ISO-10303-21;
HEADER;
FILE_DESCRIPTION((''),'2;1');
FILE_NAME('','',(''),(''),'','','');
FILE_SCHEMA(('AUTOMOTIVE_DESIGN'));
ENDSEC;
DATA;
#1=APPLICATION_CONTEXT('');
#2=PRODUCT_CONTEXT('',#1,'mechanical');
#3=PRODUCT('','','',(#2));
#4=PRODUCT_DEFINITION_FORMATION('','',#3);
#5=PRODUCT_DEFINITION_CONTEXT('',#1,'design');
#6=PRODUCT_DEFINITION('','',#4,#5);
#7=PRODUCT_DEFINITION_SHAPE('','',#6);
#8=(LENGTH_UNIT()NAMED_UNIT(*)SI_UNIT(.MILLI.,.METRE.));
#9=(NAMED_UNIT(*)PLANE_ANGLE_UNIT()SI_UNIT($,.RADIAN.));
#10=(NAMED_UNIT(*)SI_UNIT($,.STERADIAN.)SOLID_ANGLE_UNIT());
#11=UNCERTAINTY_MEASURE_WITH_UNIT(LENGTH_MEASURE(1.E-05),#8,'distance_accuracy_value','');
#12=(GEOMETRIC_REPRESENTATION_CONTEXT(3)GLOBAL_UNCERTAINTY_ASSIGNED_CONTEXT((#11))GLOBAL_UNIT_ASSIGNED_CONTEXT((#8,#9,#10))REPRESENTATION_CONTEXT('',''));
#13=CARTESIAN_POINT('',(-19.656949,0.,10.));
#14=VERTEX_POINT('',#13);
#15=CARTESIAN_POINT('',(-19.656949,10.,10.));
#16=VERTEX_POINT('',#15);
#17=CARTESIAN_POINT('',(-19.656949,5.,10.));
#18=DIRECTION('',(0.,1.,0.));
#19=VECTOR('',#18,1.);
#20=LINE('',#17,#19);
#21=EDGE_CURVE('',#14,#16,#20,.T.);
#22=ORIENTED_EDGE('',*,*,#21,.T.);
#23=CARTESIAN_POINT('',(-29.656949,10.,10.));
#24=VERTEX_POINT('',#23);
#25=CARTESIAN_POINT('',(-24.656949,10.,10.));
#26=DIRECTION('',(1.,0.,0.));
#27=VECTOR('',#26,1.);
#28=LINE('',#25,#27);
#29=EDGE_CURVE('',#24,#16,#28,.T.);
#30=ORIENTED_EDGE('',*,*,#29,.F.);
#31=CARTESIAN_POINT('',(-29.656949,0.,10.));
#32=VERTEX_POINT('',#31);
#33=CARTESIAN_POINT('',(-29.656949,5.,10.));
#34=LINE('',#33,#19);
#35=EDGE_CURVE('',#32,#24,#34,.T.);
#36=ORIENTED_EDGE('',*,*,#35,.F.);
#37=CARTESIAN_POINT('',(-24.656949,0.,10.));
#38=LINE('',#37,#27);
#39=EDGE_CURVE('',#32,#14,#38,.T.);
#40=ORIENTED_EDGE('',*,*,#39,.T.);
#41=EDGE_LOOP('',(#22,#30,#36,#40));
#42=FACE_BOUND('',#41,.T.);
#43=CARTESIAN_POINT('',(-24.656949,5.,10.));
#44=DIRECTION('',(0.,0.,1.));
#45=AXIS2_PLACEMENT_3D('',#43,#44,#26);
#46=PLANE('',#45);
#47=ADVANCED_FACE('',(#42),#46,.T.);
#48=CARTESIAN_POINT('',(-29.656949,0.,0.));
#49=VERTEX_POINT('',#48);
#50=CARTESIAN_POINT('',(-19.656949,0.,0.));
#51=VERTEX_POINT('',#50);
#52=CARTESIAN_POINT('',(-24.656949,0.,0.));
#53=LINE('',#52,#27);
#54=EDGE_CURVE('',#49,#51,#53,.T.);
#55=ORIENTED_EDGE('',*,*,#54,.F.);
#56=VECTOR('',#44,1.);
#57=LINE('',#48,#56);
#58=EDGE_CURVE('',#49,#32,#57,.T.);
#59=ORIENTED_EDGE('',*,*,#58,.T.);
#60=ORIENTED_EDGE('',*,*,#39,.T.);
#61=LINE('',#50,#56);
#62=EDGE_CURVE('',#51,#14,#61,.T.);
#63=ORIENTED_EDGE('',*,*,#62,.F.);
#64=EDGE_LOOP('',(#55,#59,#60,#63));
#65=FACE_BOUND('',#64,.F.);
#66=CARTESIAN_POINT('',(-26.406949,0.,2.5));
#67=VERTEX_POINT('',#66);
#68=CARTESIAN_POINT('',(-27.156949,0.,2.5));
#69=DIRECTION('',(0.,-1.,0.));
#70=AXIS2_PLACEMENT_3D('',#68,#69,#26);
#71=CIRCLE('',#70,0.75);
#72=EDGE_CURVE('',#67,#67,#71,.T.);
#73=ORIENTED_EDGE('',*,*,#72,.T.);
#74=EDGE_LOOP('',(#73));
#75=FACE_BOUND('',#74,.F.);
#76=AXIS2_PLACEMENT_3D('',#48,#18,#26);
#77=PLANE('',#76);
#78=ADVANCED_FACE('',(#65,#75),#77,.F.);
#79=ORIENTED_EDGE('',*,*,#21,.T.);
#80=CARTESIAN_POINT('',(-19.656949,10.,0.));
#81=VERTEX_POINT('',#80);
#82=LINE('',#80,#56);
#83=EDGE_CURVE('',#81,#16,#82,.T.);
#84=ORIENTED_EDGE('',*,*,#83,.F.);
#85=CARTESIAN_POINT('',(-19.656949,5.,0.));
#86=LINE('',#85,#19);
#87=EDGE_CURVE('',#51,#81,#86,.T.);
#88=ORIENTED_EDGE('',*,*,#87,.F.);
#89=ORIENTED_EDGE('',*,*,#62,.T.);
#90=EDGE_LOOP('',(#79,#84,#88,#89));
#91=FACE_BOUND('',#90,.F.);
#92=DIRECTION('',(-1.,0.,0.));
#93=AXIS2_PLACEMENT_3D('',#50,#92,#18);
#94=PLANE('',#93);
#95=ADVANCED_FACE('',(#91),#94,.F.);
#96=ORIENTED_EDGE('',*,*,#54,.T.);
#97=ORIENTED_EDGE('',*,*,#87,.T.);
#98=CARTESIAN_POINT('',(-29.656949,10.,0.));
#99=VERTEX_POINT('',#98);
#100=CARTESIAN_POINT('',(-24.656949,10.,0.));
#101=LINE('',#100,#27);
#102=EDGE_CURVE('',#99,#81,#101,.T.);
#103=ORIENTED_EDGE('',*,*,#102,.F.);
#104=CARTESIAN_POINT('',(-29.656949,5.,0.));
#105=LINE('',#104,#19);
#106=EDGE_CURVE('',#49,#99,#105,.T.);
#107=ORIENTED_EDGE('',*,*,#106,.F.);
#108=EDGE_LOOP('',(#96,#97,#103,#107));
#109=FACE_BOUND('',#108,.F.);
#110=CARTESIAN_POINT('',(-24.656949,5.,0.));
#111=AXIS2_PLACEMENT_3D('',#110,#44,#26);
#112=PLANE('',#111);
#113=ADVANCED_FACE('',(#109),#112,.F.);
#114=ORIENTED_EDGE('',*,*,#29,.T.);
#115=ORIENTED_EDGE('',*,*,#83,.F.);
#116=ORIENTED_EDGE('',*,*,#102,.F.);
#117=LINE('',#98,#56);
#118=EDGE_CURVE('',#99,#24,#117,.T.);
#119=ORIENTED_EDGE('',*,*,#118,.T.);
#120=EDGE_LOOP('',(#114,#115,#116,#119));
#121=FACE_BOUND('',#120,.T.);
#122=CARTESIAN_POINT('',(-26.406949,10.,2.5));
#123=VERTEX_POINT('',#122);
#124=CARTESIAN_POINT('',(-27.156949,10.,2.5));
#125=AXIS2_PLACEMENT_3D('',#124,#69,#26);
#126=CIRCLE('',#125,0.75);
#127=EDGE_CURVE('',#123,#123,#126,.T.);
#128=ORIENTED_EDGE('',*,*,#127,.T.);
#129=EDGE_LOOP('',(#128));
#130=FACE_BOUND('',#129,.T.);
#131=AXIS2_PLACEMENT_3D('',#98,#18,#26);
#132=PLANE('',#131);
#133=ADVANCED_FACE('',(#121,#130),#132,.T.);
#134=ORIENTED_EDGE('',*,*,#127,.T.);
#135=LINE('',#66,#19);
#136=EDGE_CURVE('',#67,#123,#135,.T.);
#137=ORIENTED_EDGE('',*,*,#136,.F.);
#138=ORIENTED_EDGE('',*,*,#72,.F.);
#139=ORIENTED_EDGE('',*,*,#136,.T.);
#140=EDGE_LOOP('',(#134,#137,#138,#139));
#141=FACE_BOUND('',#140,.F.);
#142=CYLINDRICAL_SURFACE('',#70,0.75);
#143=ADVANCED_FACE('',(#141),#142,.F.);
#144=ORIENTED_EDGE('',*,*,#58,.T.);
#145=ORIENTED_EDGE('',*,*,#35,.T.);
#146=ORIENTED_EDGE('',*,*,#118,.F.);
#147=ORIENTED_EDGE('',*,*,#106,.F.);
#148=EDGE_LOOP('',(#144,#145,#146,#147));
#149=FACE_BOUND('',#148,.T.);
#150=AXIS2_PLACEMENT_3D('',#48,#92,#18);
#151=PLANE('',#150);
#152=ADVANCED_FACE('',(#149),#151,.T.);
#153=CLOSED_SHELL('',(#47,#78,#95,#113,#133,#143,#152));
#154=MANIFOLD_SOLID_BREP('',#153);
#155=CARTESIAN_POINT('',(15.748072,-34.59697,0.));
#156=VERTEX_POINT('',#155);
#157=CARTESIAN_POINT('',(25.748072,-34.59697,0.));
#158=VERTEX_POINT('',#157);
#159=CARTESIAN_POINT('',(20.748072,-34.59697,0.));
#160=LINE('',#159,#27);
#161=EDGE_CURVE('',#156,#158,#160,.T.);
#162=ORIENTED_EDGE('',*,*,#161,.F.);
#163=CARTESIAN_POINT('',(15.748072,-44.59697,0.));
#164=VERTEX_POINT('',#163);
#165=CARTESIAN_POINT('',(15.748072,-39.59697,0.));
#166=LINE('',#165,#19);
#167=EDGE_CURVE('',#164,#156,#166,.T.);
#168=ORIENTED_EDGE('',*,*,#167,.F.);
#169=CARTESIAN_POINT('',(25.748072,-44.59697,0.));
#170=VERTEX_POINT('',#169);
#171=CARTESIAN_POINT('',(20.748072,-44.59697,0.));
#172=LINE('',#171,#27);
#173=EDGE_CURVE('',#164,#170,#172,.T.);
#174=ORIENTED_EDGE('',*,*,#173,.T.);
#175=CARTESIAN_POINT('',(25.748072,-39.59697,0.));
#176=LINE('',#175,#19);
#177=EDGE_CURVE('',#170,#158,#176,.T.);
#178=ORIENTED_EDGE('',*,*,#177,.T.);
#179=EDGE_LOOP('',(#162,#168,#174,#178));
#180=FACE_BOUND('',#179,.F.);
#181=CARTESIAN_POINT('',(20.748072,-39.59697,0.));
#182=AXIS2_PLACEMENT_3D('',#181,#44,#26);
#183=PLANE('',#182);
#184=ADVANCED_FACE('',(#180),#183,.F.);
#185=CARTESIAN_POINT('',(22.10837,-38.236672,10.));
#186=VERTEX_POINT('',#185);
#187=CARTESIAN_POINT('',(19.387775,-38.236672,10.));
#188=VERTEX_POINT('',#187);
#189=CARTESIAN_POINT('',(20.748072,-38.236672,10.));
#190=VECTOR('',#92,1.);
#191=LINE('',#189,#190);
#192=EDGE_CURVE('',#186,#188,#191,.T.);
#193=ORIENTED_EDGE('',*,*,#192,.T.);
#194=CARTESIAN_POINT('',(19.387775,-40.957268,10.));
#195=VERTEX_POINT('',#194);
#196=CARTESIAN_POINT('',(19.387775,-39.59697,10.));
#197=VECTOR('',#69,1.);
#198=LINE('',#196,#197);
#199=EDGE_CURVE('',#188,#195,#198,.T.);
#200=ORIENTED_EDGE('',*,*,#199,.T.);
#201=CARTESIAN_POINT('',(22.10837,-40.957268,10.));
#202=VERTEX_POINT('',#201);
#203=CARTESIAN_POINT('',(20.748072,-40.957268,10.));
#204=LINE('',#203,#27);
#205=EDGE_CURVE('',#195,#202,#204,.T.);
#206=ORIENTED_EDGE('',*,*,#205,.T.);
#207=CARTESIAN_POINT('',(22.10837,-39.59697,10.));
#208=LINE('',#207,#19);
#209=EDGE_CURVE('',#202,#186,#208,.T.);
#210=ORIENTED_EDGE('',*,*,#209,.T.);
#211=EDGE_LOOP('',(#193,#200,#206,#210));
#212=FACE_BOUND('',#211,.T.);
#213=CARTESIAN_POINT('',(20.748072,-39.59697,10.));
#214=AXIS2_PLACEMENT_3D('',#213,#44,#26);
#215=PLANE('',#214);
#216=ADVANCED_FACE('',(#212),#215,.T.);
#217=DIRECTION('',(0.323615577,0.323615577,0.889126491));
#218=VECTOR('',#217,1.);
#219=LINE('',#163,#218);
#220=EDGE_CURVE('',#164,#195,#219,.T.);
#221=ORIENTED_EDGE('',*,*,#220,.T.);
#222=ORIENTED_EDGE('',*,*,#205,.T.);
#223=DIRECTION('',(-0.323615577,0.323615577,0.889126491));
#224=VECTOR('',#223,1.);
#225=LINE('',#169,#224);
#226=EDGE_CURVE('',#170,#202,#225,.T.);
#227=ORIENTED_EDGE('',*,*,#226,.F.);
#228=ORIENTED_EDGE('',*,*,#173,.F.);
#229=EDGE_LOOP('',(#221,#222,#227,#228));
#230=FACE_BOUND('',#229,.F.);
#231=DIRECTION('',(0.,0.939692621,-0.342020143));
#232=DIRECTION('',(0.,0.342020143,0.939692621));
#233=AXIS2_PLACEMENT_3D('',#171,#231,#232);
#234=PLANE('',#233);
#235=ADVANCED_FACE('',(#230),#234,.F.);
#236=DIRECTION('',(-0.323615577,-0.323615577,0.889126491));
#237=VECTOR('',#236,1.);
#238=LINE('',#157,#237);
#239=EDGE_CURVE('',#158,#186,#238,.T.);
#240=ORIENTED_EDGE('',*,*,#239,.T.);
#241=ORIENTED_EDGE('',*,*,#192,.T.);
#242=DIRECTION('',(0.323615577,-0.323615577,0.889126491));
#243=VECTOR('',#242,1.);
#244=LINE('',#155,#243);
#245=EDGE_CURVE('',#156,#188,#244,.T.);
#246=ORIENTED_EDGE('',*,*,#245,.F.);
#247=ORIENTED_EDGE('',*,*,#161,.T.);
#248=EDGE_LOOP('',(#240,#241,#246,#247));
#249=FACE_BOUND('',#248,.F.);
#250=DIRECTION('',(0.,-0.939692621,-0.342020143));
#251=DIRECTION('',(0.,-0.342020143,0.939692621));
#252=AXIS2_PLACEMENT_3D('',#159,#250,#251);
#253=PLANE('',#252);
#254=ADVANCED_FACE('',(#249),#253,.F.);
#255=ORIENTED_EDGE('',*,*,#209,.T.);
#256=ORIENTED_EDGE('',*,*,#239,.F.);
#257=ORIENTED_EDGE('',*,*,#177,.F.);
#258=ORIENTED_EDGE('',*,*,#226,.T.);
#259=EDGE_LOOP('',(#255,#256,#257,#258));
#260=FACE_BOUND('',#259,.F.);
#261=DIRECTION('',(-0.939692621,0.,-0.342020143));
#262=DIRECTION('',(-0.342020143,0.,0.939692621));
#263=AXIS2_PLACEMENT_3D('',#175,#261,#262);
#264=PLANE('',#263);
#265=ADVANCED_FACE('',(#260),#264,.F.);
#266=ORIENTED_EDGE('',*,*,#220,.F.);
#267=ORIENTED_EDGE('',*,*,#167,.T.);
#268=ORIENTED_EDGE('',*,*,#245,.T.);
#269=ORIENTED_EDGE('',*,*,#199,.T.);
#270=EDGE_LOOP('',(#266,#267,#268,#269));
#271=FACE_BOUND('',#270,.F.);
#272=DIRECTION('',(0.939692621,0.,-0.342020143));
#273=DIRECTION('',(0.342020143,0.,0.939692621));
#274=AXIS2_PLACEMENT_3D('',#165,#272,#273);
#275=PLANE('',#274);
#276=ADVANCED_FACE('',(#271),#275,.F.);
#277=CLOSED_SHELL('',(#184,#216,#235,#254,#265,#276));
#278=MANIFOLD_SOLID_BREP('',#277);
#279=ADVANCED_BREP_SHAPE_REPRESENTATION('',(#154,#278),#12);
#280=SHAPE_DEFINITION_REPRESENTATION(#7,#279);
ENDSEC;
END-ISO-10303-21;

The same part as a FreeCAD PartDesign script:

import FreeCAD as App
import Part
import Sketcher

V = App.Vector
Q = App.Units.Quantity

doc = App.newDocument("Part")
body = doc.addObject("PartDesign::Body", "Body")

sketch1 = body.newObject("Sketcher::SketchObject", "Sketch")
sketch1.AttachmentSupport = (doc.getObject("XY_Plane"), [""])
sketch1.MapMode = "FlatFace"
sketch1.addGeometry(Part.LineSegment(V(-30, 10, 0), V(-30, 0, 0)), False)
sketch1.addGeometry(Part.LineSegment(V(-30, 0, 0), V(-20, 0, 0)), False)
sketch1.addGeometry(Part.LineSegment(V(-20, 0, 0), V(-20, 10, 0)), False)
sketch1.addGeometry(Part.LineSegment(V(-20, 10, 0), V(-30, 10, 0)), False)
sketch1.addConstraint(Sketcher.Constraint("Coincident", 0, 2, 1, 1))
sketch1.addConstraint(Sketcher.Constraint("Coincident", 1, 2, 2, 1))
sketch1.addConstraint(Sketcher.Constraint("Coincident", 2, 2, 3, 1))
sketch1.addConstraint(Sketcher.Constraint("Coincident", 3, 2, 0, 1))
sketch1.addConstraint(Sketcher.Constraint("Vertical", 0))
sketch1.addConstraint(Sketcher.Constraint("Horizontal", 1))
sketch1.addConstraint(Sketcher.Constraint("Vertical", 2))
sketch1.addConstraint(Sketcher.Constraint("Horizontal", 3))
sketch1.addConstraint(Sketcher.Constraint("PointOnObject", 0, 2, -1))
sketch1.addConstraint(Sketcher.Constraint("Equal", 3, 0))
sketch1.addConstraint(Sketcher.Constraint("DistanceX", 1, 1, 1, 2, Q("10 mm")))
sketch1.addConstraint(Sketcher.Constraint("DistanceX", 0, 2, -1, 1, Q("29.656949 mm")))
pad1 = body.newObject("PartDesign::Pad", "Pad")
pad1.Profile = sketch1
pad1.Length = 10

sketch2 = body.newObject("Sketcher::SketchObject", "Sketch001")
sketch2.AttachmentSupport = (doc.getObject("XZ_Plane"), [""])
sketch2.MapMode = "FlatFace"
sketch2.addGeometry(Part.Circle(V(-27.2, 2.5, 0), V(0, 0, 1), 0.8), False)
sketch2.addConstraint(Sketcher.Constraint("Diameter", 0, Q("1.5 mm")))
sketch2.addConstraint(Sketcher.Constraint("DistanceY", -1, 1, 0, 3, Q("2.5 mm")))
sketch2.addConstraint(Sketcher.Constraint("DistanceX", 0, 3, -1, 1, Q("27.156949 mm")))
pocket1 = body.newObject("PartDesign::Pocket", "Pocket")
pocket1.Profile = sketch2
pocket1.Length = 25
body2 = doc.addObject("PartDesign::Body", "Body001")

sketch3 = body2.newObject("Sketcher::SketchObject", "Sketch002")
sketch3.AttachmentSupport = (doc.getObject("XY_Plane001"), [""])
sketch3.MapMode = "FlatFace"
sketch3.addGeometry(Part.LineSegment(V(16, -35, 0), V(16, -45, 0)), False)
sketch3.addGeometry(Part.LineSegment(V(16, -45, 0), V(26, -45, 0)), False)
sketch3.addGeometry(Part.LineSegment(V(26, -45, 0), V(26, -35, 0)), False)
sketch3.addGeometry(Part.LineSegment(V(26, -35, 0), V(16, -35, 0)), False)
sketch3.addConstraint(Sketcher.Constraint("Coincident", 0, 2, 1, 1))
sketch3.addConstraint(Sketcher.Constraint("Coincident", 1, 2, 2, 1))
sketch3.addConstraint(Sketcher.Constraint("Coincident", 2, 2, 3, 1))
sketch3.addConstraint(Sketcher.Constraint("Coincident", 3, 2, 0, 1))
sketch3.addConstraint(Sketcher.Constraint("Vertical", 0))
sketch3.addConstraint(Sketcher.Constraint("Horizontal", 1))
sketch3.addConstraint(Sketcher.Constraint("Vertical", 2))
sketch3.addConstraint(Sketcher.Constraint("Horizontal", 3))
sketch3.addConstraint(Sketcher.Constraint("Equal", 3, 0))
sketch3.addConstraint(Sketcher.Constraint("DistanceX", 1, 1, 1, 2, Q("10 mm")))
sketch3.addConstraint(Sketcher.Constraint("DistanceY", 0, 2, -1, 1, Q("44.59697 mm")))
sketch3.addConstraint(Sketcher.Constraint("DistanceX", -1, 1, 0, 2, Q("15.748072 mm")))
pad2 = body2.newObject("PartDesign::Pad", "Pad001")
pad2.Profile = sketch3
pad2.Length = 10
pad2.TaperAngle = -20

doc.recompute()
